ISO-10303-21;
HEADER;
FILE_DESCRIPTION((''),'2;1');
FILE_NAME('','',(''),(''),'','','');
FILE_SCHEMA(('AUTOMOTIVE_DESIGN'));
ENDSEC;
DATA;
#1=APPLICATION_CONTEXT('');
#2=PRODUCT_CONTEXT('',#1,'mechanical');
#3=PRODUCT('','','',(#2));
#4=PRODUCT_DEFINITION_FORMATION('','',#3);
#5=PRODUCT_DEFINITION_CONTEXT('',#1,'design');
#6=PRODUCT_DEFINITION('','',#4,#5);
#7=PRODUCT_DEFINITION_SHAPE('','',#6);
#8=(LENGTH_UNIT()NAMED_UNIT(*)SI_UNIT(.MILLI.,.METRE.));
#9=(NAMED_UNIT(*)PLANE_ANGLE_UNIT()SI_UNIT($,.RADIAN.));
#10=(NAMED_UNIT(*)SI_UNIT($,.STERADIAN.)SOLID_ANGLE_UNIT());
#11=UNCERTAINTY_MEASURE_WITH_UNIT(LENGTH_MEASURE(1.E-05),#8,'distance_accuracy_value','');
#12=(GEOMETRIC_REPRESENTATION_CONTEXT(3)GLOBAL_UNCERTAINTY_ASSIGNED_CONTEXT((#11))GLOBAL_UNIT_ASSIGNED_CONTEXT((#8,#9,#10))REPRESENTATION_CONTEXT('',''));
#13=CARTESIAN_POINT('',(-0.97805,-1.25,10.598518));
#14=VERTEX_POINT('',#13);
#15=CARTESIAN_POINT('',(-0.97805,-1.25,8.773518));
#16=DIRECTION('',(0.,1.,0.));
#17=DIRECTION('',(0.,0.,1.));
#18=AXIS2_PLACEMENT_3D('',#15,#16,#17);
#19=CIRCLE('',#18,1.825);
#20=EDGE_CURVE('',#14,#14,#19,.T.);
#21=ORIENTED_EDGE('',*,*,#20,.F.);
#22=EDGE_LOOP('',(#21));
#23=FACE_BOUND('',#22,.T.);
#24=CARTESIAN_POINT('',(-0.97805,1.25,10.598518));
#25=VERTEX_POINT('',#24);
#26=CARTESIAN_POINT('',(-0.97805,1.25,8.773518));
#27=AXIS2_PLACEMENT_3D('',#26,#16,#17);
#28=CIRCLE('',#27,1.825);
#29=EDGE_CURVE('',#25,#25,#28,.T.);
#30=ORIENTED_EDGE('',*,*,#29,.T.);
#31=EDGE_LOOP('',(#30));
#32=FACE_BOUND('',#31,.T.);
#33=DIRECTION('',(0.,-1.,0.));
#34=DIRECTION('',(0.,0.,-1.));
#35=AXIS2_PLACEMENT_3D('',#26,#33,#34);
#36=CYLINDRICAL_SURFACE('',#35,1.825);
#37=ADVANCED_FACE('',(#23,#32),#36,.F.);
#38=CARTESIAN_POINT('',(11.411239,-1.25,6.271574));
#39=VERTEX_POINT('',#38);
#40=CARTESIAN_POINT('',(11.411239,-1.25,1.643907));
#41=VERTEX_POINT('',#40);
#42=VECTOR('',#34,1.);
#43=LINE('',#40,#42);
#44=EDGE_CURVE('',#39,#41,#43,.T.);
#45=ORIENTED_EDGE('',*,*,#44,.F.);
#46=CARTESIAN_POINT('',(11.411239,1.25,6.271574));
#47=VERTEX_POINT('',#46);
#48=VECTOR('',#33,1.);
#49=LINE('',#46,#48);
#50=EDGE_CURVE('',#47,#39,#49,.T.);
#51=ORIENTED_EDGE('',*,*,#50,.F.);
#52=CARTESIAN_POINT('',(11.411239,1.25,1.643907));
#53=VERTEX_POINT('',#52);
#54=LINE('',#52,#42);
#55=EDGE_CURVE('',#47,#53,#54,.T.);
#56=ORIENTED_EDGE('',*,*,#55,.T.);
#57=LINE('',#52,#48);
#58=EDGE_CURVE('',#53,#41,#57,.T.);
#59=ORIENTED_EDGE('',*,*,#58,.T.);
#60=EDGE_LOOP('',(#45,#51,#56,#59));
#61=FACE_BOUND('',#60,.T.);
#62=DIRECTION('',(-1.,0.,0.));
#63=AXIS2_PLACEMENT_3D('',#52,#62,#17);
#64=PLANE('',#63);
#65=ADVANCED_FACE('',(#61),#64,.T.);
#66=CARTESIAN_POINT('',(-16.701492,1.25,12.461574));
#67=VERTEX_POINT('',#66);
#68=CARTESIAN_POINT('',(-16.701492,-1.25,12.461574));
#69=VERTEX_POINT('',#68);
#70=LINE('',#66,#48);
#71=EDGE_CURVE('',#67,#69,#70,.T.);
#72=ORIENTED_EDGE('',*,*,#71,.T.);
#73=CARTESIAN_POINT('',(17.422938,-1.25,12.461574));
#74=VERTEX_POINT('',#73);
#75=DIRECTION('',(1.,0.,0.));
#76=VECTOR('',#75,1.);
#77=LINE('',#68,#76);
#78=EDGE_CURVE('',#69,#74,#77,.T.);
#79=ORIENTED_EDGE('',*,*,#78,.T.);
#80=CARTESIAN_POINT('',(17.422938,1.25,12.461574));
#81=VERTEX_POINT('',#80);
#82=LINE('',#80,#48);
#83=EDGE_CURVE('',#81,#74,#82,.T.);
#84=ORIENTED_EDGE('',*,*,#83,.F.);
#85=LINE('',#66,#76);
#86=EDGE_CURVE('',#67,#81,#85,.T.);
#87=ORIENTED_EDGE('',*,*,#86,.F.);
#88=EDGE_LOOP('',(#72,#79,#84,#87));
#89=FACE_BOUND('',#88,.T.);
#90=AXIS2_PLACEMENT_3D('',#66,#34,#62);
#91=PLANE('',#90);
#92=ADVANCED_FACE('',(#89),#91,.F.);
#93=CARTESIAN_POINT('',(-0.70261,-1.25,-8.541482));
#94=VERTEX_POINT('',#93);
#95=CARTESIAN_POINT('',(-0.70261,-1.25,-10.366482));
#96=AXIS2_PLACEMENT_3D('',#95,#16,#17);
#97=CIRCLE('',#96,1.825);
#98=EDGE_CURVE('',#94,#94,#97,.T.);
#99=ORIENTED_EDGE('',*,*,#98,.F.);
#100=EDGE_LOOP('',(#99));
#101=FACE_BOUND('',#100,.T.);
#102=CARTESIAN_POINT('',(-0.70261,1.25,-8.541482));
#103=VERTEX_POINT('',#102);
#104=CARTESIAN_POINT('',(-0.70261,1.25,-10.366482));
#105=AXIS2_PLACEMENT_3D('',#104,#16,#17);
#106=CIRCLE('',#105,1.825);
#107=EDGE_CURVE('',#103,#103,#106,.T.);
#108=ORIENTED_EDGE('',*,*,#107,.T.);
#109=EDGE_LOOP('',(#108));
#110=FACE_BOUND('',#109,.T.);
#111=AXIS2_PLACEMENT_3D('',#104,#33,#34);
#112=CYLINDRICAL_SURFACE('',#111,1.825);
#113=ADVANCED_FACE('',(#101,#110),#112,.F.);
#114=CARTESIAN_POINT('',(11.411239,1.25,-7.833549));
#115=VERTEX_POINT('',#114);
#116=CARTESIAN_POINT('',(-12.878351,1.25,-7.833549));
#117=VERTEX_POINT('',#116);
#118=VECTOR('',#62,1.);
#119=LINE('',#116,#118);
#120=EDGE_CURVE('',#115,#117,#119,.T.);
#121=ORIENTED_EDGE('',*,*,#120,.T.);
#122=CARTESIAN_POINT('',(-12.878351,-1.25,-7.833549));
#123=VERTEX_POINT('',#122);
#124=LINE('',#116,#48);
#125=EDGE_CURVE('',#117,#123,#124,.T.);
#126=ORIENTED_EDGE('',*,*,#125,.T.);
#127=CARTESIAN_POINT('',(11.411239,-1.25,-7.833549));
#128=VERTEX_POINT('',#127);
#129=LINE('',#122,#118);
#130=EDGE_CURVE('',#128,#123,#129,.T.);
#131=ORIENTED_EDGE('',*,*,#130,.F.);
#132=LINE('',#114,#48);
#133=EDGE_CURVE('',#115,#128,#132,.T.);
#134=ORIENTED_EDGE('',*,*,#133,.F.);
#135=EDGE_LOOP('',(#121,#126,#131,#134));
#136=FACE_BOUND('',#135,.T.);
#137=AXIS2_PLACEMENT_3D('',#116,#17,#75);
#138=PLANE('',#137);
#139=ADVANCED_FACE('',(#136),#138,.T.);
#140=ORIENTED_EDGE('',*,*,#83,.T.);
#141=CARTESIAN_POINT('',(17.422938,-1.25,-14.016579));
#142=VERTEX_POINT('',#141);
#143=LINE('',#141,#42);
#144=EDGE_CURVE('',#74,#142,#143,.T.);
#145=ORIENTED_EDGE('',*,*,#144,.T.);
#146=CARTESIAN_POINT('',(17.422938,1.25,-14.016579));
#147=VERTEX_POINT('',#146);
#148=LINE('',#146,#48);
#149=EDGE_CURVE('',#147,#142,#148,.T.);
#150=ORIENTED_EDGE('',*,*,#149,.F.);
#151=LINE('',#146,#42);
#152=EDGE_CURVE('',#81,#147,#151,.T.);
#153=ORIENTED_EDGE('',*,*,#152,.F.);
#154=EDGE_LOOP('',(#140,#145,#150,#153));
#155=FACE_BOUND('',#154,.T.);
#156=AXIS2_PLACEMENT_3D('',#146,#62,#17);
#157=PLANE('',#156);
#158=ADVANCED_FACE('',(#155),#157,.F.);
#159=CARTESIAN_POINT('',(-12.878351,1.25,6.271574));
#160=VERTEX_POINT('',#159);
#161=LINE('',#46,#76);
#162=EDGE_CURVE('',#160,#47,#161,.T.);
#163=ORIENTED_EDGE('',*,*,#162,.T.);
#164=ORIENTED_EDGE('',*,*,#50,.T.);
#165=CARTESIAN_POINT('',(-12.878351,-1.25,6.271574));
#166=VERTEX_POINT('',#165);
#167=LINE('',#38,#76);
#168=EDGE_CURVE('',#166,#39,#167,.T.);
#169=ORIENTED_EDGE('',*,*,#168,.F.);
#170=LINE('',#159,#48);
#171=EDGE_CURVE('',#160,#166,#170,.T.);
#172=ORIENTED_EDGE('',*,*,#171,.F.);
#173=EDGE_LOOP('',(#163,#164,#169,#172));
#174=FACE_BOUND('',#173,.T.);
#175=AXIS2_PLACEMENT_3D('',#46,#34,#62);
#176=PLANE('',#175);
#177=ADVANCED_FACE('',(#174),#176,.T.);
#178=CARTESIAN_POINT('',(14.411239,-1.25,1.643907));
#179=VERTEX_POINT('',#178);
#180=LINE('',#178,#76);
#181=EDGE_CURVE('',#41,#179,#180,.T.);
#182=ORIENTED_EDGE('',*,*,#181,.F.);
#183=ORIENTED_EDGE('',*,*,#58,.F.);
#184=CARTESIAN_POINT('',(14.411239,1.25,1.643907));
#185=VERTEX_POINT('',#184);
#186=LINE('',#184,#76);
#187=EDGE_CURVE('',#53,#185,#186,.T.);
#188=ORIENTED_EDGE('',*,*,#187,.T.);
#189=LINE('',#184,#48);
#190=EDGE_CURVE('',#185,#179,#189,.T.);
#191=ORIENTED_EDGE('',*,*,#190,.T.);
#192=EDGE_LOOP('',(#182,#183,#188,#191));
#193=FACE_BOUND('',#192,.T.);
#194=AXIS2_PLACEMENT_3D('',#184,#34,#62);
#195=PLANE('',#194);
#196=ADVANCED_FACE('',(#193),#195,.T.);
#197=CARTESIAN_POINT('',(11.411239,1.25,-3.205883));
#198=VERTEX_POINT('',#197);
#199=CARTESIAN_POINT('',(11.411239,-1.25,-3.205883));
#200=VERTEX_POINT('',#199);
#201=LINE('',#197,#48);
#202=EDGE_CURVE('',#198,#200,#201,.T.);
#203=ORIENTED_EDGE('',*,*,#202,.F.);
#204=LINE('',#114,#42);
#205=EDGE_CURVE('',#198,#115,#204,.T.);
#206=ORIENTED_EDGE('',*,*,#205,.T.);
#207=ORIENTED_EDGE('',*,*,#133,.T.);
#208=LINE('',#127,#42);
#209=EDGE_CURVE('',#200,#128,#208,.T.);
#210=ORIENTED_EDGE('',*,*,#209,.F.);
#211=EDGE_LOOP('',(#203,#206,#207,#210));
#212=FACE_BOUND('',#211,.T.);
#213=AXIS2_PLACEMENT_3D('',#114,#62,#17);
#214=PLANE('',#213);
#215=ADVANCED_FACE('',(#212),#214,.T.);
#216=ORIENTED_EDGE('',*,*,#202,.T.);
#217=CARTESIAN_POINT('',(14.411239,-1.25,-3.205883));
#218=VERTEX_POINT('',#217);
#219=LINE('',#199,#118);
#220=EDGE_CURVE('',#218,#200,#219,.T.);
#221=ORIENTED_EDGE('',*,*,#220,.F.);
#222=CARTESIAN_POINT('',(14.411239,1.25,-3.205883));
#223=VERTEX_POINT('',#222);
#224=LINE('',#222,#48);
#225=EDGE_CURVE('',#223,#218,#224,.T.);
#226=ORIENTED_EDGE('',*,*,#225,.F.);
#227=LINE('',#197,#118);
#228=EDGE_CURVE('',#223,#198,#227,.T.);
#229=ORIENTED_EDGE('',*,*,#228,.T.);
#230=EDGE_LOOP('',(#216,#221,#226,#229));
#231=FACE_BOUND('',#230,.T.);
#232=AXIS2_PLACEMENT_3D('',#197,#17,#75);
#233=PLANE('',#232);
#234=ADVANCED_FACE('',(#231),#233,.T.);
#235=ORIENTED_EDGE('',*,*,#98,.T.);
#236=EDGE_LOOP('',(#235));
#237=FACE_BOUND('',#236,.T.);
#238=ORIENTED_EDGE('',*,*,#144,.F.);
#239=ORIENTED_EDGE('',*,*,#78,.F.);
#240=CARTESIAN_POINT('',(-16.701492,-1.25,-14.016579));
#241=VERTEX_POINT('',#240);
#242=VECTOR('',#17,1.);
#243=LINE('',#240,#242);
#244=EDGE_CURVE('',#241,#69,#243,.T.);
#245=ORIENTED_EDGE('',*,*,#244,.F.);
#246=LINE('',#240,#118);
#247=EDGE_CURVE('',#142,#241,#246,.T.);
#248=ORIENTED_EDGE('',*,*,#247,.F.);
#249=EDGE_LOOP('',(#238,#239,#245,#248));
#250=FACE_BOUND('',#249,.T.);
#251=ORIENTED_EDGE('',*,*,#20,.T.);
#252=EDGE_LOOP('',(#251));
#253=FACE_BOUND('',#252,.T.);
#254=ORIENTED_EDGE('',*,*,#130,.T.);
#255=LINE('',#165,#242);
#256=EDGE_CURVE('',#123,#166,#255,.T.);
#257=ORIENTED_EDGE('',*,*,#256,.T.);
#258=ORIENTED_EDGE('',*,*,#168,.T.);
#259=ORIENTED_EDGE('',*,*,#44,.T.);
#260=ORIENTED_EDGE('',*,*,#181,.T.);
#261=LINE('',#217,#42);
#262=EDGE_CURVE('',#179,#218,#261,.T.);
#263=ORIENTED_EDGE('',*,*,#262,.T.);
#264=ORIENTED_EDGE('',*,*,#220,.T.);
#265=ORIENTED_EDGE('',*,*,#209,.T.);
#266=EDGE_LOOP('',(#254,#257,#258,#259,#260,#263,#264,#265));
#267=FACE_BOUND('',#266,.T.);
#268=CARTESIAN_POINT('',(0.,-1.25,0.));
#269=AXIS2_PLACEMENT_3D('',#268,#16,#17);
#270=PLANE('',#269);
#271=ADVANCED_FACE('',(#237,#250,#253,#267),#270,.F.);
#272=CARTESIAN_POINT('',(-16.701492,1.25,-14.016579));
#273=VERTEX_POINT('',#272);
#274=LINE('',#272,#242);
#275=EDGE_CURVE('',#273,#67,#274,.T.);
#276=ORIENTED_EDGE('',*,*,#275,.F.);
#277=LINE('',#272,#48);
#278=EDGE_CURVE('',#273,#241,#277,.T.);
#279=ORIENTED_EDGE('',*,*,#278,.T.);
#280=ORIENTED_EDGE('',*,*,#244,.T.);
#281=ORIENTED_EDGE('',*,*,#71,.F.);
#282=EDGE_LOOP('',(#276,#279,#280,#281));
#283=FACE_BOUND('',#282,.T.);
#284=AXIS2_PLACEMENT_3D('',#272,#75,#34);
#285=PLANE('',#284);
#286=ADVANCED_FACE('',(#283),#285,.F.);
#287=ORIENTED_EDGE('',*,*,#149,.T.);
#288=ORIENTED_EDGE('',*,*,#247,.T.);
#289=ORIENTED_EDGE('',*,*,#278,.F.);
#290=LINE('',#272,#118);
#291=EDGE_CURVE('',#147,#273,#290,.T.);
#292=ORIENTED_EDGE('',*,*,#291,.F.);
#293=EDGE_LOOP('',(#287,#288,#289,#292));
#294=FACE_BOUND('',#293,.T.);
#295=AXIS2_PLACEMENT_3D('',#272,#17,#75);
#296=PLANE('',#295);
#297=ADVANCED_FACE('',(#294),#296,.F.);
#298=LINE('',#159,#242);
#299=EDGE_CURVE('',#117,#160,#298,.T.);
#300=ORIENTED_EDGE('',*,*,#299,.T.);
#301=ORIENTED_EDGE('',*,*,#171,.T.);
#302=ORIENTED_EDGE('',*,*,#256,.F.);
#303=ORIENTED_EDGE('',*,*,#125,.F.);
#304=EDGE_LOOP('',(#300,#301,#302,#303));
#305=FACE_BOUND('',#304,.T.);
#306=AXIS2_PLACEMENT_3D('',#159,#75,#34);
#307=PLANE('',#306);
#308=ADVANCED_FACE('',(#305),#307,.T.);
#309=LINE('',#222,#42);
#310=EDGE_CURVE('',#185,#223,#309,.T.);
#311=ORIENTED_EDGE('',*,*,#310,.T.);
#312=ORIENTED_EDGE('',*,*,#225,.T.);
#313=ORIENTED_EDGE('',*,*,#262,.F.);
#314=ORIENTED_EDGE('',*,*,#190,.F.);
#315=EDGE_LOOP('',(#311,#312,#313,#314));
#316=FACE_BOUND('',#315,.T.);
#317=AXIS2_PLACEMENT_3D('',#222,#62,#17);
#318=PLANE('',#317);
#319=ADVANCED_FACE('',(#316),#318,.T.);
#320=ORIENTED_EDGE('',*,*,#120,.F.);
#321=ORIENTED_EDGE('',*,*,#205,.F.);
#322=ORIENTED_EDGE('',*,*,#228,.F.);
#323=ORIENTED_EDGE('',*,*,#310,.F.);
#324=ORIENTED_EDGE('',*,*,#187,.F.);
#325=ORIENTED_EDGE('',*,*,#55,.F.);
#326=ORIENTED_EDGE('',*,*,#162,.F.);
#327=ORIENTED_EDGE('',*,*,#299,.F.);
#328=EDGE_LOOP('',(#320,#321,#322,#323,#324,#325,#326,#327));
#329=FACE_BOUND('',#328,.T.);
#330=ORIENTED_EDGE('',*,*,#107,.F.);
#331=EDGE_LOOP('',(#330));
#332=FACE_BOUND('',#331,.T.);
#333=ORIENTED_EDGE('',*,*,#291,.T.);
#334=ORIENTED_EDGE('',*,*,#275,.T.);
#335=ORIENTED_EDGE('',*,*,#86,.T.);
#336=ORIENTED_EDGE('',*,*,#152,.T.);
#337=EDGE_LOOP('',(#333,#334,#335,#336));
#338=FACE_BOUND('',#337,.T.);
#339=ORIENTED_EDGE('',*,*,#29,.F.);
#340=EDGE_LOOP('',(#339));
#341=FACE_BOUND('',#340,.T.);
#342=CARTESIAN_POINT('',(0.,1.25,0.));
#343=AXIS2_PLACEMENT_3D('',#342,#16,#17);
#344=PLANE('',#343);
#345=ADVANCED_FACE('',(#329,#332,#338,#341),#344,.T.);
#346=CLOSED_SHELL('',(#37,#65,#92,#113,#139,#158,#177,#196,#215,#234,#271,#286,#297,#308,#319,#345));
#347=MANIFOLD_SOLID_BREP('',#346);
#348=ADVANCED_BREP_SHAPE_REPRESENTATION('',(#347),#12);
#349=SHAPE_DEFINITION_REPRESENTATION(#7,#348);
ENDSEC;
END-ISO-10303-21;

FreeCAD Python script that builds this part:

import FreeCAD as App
import Part
import Sketcher
Q = App.Units.Quantity

doc = App.newDocument("Part")
body = doc.addObject("PartDesign::Body", "Body")

# Sketch on XZ plane
sketch1 = body.newObject("Sketcher::SketchObject", "Sketch")
sketch1.AttachmentSupport = (doc.getObject("XZ_Plane"), [""])
sketch1.MapMode = "FlatFace"
sketch1.addGeometry(Part.LineSegment(App.Vector(-16.7, -14, 0), App.Vector(-16.7, 12.5, 0)), False)
sketch1.addGeometry(Part.LineSegment(App.Vector(-16.7, 12.5, 0), App.Vector(17.4, 12.5, 0)), False)
sketch1.addGeometry(Part.LineSegment(App.Vector(17.4, 12.5, 0), App.Vector(17.4, -14, 0)), False)
sketch1.addGeometry(Part.LineSegment(App.Vector(17.4, -14, 0), App.Vector(-16.7, -14, 0)), False)
sketch1.addGeometry(Part.Circle(App.Vector(-1, 8.8, 0), App.Vector(0, 0, 1), 1.8), False)
sketch1.addGeometry(Part.LineSegment(App.Vector(-12.9, 6.3, 0), App.Vector(-12.9, -7.8, 0)), False)
sketch1.addGeometry(Part.LineSegment(App.Vector(-12.9, -7.8, 0), App.Vector(11.4, -7.8, 0)), False)
sketch1.addGeometry(Part.LineSegment(App.Vector(11.4, -7.8, 0), App.Vector(11.4, -3.2, 0)), False)
sketch1.addGeometry(Part.LineSegment(App.Vector(11.4, -3.2, 0), App.Vector(14.4, -3.2, 0)), False)
sketch1.addGeometry(Part.LineSegment(App.Vector(14.4, -3.2, 0), App.Vector(14.4, 1.6, 0)), False)
sketch1.addGeometry(Part.LineSegment(App.Vector(14.4, 1.6, 0), App.Vector(11.4, 1.6, 0)), False)
sketch1.addGeometry(Part.LineSegment(App.Vector(11.4, 1.6, 0), App.Vector(11.4, 6.3, 0)), False)
sketch1.addGeometry(Part.LineSegment(App.Vector(11.4, 6.3, 0), App.Vector(-12.9, 6.3, 0)), False)
sketch1.addGeometry(Part.Circle(App.Vector(-0.7, -10.4, 0), App.Vector(0, 0, 1), 1.8), False)
sketch1.addConstraint(Sketcher.Constraint("Coincident", 0, 2, 1, 1))
sketch1.addConstraint(Sketcher.Constraint("Coincident", 1, 2, 2, 1))
sketch1.addConstraint(Sketcher.Constraint("Coincident", 2, 2, 3, 1))
sketch1.addConstraint(Sketcher.Constraint("Coincident", 3, 2, 0, 1))
sketch1.addConstraint(Sketcher.Constraint("Coincident", 5, 2, 6, 1))
sketch1.addConstraint(Sketcher.Constraint("Coincident", 6, 2, 7, 1))
sketch1.addConstraint(Sketcher.Constraint("Coincident", 7, 2, 8, 1))
sketch1.addConstraint(Sketcher.Constraint("Coincident", 8, 2, 9, 1))
sketch1.addConstraint(Sketcher.Constraint("Coincident", 9, 2, 10, 1))
sketch1.addConstraint(Sketcher.Constraint("Coincident", 10, 2, 11, 1))
sketch1.addConstraint(Sketcher.Constraint("Coincident", 11, 2, 12, 1))
sketch1.addConstraint(Sketcher.Constraint("Coincident", 12, 2, 5, 1))
sketch1.addConstraint(Sketcher.Constraint("Vertical", 0))
sketch1.addConstraint(Sketcher.Constraint("Horizontal", 1))
sketch1.addConstraint(Sketcher.Constraint("Vertical", 2))
sketch1.addConstraint(Sketcher.Constraint("Horizontal", 3))
sketch1.addConstraint(Sketcher.Constraint("Vertical", 5))
sketch1.addConstraint(Sketcher.Constraint("Horizontal", 6))
sketch1.addConstraint(Sketcher.Constraint("Vertical", 7))
sketch1.addConstraint(Sketcher.Constraint("Horizontal", 8))
sketch1.addConstraint(Sketcher.Constraint("Vertical", 9))
sketch1.addConstraint(Sketcher.Constraint("Horizontal", 10))
sketch1.addConstraint(Sketcher.Constraint("Vertical", 11))
sketch1.addConstraint(Sketcher.Constraint("Horizontal", 12))
sketch1.addConstraint(Sketcher.Constraint("Equal", 4, 13))
sketch1.addConstraint(Sketcher.Constraint("Vertical", 7, 2, 10, 2))
sketch1.addConstraint(Sketcher.Constraint("Equal", 7, 11))
sketch1.addConstraint(Sketcher.Constraint("Diameter", 4, Q("3.65 mm")))
sketch1.addConstraint(Sketcher.Constraint("DistanceX", 8, 1, 8, 2, Q("3 mm")))
sketch1.addConstraint(Sketcher.Constraint("DistanceY", 13, 3, 4, 3, Q("19.14 mm")))
sketch1.addConstraint(Sketcher.Constraint("DistanceY", 11, 2, 1, 2, Q("6.19 mm")))
sketch1.addConstraint(Sketcher.Constraint("DistanceX", 1, 1, 1, 2, Q("34.12443 mm")))
sketch1.addConstraint(Sketcher.Constraint("DistanceX", 6, 1, 6, 2, Q("24.28959 mm")))
sketch1.addConstraint(Sketcher.Constraint("DistanceY", 9, 1, 9, 2, Q("4.84979 mm")))
sketch1.addConstraint(Sketcher.Constraint("DistanceX", 5, 2, 4, 3, Q("11.900301 mm")))
sketch1.addConstraint(Sketcher.Constraint("DistanceX", 6, 2, 2, 2, Q("6.011699 mm")))
sketch1.addConstraint(Sketcher.Constraint("DistanceY", 13, 3, 7, 2, Q("7.160599 mm")))
sketch1.addConstraint(Sketcher.Constraint("DistanceY", 0, 1, 0, 2, Q("26.478153 mm")))
sketch1.addConstraint(Sketcher.Constraint("DistanceY", 5, 2, 5, 1, Q("14.105123 mm")))
sketch1.addConstraint(Sketcher.Constraint("DistanceX", 4, 3, -1, 1, Q("0.97805 mm")))
sketch1.addConstraint(Sketcher.Constraint("DistanceY", -1, 1, 4, 3, Q("8.773518 mm")))
sketch1.addConstraint(Sketcher.Constraint("DistanceX", 13, 3, -1, 1, Q("0.70261 mm")))
pad1 = body.newObject("PartDesign::Pad", "Pad")
pad1.Profile = sketch1
pad1.Length = 2.5
pad1.Midplane = True

doc.recompute()
